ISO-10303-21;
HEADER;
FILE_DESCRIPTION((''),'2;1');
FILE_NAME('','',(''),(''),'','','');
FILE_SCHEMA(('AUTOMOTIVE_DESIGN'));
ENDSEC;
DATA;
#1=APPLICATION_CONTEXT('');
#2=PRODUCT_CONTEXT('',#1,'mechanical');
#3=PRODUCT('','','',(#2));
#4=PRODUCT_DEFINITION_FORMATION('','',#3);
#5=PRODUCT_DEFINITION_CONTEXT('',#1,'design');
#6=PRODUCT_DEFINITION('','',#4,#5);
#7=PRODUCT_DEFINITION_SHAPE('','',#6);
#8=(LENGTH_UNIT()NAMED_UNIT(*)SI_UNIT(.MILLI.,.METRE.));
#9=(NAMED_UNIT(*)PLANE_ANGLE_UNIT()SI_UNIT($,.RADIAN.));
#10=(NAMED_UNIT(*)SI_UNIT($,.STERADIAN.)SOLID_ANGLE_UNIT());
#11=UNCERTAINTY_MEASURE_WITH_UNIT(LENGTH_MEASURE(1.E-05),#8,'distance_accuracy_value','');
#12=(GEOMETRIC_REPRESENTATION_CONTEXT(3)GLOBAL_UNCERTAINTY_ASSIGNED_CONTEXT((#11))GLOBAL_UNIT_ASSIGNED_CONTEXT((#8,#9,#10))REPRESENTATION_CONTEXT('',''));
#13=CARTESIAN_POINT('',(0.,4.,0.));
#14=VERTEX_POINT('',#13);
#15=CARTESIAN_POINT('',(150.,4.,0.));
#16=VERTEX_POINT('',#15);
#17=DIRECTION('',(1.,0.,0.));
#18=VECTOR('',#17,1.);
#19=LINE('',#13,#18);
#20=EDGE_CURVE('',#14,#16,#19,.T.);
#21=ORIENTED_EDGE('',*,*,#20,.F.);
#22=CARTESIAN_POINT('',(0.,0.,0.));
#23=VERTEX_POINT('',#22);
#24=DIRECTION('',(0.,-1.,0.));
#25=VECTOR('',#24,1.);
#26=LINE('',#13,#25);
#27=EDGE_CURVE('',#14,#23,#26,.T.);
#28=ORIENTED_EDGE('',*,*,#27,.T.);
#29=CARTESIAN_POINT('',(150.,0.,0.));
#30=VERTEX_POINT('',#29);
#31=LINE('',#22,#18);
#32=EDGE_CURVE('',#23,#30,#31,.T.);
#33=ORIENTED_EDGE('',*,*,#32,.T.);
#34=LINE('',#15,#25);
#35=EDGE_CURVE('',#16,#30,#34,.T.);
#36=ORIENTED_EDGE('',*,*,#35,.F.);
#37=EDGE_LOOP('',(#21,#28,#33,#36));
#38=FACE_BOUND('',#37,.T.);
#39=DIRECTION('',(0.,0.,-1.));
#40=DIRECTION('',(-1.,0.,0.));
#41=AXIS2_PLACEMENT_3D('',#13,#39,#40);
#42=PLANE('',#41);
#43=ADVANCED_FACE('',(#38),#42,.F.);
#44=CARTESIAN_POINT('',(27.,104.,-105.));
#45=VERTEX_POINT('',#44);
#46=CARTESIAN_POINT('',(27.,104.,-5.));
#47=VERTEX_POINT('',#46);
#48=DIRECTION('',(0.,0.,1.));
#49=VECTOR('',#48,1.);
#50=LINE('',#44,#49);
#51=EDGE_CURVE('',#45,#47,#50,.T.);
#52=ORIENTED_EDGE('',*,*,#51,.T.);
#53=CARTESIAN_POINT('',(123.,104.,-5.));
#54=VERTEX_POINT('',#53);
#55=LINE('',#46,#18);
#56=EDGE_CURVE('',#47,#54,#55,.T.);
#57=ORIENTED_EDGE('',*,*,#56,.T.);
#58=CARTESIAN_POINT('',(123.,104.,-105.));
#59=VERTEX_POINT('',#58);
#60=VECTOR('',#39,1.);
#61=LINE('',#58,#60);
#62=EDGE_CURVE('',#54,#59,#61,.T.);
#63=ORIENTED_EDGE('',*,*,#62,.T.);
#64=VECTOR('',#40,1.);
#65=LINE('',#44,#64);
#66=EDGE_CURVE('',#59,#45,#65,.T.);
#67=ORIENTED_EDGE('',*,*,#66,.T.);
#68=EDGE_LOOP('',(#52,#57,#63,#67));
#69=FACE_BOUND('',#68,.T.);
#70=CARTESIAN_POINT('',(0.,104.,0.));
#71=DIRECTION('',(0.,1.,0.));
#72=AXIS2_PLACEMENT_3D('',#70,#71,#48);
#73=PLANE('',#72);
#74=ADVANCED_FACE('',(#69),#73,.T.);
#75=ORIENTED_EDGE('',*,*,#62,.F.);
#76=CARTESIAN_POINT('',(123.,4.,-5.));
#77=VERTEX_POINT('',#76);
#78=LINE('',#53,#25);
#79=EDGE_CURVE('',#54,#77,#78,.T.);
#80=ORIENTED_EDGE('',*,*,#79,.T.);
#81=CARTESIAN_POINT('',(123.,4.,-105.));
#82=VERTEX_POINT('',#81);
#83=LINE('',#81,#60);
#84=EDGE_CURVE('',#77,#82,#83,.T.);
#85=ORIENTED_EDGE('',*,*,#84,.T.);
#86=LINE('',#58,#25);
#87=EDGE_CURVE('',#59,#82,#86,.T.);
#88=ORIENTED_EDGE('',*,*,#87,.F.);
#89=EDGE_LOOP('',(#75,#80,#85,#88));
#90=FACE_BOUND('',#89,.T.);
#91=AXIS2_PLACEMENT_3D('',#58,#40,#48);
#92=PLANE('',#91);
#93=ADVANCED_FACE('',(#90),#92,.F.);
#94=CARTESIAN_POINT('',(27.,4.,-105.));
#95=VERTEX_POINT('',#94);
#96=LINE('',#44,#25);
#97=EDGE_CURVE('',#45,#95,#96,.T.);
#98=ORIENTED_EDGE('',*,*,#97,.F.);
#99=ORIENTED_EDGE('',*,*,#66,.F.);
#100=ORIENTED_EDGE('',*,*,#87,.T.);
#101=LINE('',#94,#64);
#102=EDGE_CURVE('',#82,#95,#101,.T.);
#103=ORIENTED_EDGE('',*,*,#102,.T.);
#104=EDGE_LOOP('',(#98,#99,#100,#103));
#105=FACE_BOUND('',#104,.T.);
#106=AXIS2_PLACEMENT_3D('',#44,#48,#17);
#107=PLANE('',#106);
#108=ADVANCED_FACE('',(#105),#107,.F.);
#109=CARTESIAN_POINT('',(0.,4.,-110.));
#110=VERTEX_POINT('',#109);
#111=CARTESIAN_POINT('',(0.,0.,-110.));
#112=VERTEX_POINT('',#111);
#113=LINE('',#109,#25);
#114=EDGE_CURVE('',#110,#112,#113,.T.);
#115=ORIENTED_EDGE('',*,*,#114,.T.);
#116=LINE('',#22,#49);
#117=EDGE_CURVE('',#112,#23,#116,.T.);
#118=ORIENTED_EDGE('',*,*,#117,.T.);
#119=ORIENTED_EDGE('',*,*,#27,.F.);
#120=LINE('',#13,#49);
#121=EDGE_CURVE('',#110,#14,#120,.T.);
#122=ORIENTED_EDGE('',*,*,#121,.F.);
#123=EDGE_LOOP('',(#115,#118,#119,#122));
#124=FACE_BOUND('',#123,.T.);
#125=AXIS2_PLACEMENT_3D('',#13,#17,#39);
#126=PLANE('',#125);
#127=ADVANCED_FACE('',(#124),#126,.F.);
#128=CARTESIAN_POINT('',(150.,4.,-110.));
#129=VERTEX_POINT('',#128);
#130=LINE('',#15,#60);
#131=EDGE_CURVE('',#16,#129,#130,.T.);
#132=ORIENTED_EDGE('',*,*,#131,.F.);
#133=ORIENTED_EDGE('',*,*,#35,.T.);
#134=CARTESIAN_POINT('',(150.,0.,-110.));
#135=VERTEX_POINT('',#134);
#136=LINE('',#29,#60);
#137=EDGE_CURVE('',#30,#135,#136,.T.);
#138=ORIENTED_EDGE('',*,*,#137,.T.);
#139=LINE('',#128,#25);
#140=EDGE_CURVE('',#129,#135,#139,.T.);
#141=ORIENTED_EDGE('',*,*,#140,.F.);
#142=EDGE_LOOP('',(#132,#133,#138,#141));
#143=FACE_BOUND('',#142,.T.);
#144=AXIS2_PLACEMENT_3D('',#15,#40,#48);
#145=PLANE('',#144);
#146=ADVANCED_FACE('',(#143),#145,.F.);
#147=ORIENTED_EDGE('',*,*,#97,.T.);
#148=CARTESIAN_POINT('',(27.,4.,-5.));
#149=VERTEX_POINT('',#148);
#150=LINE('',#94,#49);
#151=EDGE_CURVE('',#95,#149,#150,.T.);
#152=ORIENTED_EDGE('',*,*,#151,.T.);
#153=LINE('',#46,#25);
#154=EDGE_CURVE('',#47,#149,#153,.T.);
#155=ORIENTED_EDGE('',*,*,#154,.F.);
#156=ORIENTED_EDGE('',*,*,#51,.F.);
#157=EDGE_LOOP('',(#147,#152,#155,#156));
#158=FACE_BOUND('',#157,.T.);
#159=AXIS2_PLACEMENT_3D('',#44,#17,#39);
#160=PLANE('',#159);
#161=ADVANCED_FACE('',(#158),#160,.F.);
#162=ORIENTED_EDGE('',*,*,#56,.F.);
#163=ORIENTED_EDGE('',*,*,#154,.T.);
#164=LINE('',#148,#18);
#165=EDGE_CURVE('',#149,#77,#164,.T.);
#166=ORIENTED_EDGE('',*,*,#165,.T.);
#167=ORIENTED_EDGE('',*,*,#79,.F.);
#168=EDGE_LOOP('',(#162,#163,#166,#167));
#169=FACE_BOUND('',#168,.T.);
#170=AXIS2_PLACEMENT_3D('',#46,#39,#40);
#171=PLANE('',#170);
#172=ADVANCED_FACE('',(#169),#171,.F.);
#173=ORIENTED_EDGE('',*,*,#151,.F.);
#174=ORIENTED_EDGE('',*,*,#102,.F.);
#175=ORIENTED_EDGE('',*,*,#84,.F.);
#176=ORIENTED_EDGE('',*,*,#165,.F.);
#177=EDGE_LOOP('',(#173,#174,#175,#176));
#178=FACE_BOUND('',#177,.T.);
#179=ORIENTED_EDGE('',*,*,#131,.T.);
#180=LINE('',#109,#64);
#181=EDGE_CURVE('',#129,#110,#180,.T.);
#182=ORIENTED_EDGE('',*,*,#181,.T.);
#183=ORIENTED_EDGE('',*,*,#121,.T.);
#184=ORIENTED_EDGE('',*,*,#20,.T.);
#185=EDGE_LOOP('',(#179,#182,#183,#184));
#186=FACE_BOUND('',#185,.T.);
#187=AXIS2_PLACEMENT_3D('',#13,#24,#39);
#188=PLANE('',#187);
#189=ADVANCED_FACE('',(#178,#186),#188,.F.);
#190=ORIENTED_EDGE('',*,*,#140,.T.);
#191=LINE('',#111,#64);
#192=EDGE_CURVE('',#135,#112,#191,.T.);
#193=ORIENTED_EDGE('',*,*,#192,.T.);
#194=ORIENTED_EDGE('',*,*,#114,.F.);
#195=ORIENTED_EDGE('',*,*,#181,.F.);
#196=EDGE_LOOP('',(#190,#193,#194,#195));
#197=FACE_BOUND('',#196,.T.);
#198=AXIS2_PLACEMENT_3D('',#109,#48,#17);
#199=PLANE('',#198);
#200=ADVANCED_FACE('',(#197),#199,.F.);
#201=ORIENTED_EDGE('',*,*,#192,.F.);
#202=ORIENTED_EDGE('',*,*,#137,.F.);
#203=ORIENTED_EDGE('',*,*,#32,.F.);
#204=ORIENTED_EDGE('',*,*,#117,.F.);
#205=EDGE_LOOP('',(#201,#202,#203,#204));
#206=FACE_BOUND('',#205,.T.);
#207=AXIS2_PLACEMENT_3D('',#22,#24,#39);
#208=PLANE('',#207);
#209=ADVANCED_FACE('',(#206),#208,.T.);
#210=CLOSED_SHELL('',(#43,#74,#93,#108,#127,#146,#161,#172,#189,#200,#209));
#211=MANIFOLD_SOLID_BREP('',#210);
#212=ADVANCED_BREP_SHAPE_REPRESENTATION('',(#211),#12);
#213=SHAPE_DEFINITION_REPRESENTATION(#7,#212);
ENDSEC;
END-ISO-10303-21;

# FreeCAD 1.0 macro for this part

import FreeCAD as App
import Part
import Sketcher


def add_polygon(sketch, points):
    """Adds a closed chain of lines whose ends are joined by coincident constraints."""
    first, n = sketch.GeometryCount, len(points)
    for a, b in zip(points, points[1:] + points[:1]):
        sketch.addGeometry(Part.LineSegment(App.Vector(*a, 0), App.Vector(*b, 0)), False)
    for i in range(n):
        sketch.addConstraint(Sketcher.Constraint("Coincident", first + i, 2, first + (i + 1) % n, 1))

doc = App.newDocument("Part")
body = doc.addObject("PartDesign::Body", "Body")

# Sketch on XZ plane
sketch1 = body.newObject("Sketcher::SketchObject", "Sketch")
sketch1.AttachmentSupport = (doc.getObject("XZ_Plane"), [""])
sketch1.MapMode = "FlatFace"
add_polygon(sketch1, [(0, -110), (0, 0), (150, 0), (150, -110)])  # lines 0-3
sketch1.addConstraint(Sketcher.Constraint("Vertical", 0))
sketch1.addConstraint(Sketcher.Constraint("Horizontal", 1))
sketch1.addConstraint(Sketcher.Constraint("Vertical", 2))
sketch1.addConstraint(Sketcher.Constraint("Horizontal", 3))
sketch1.addConstraint(Sketcher.Constraint("Coincident", 0, 2, -1, 1))
sketch1.addConstraint(Sketcher.Constraint("DistanceX", 1, 1, 1, 2, 150.0))
sketch1.addConstraint(Sketcher.Constraint("DistanceY", 0, 1, 0, 2, 110.0))
pad1 = body.newObject("PartDesign::Pad", "Pad")
pad1.Profile = sketch1
pad1.Length = 4
pad1.Reversed = True

# Sketch on XZ plane
sketch2 = body.newObject("Sketcher::SketchObject", "Sketch001")
sketch2.AttachmentSupport = (doc.getObject("XZ_Plane"), [""])
sketch2.MapMode = "FlatFace"
sketch2.AttachmentOffset = App.Placement(App.Vector(0, 0, -4), App.Rotation())
add_polygon(sketch2, [(27, -105), (27, -5), (123, -5), (123, -105)])  # lines 0-3
sketch2.addConstraint(Sketcher.Constraint("Vertical", 0))
sketch2.addConstraint(Sketcher.Constraint("Horizontal", 1))
sketch2.addConstraint(Sketcher.Constraint("Vertical", 2))
sketch2.addConstraint(Sketcher.Constraint("Horizontal", 3))
sketch2.addConstraint(Sketcher.Constraint("DistanceX", 1, 1, 1, 2, 96.0))
sketch2.addConstraint(Sketcher.Constraint("DistanceY", 0, 1, 0, 2, 100.0))
sketch2.addConstraint(Sketcher.Constraint("DistanceX", -1, 1, 0, 2, 27.0))
sketch2.addConstraint(Sketcher.Constraint("DistanceY", 0, 2, -1, 1, 5.0))
pad2 = body.newObject("PartDesign::Pad", "Pad001")
pad2.Profile = sketch2
pad2.Length = 100
pad2.Reversed = True

doc.recompute()
